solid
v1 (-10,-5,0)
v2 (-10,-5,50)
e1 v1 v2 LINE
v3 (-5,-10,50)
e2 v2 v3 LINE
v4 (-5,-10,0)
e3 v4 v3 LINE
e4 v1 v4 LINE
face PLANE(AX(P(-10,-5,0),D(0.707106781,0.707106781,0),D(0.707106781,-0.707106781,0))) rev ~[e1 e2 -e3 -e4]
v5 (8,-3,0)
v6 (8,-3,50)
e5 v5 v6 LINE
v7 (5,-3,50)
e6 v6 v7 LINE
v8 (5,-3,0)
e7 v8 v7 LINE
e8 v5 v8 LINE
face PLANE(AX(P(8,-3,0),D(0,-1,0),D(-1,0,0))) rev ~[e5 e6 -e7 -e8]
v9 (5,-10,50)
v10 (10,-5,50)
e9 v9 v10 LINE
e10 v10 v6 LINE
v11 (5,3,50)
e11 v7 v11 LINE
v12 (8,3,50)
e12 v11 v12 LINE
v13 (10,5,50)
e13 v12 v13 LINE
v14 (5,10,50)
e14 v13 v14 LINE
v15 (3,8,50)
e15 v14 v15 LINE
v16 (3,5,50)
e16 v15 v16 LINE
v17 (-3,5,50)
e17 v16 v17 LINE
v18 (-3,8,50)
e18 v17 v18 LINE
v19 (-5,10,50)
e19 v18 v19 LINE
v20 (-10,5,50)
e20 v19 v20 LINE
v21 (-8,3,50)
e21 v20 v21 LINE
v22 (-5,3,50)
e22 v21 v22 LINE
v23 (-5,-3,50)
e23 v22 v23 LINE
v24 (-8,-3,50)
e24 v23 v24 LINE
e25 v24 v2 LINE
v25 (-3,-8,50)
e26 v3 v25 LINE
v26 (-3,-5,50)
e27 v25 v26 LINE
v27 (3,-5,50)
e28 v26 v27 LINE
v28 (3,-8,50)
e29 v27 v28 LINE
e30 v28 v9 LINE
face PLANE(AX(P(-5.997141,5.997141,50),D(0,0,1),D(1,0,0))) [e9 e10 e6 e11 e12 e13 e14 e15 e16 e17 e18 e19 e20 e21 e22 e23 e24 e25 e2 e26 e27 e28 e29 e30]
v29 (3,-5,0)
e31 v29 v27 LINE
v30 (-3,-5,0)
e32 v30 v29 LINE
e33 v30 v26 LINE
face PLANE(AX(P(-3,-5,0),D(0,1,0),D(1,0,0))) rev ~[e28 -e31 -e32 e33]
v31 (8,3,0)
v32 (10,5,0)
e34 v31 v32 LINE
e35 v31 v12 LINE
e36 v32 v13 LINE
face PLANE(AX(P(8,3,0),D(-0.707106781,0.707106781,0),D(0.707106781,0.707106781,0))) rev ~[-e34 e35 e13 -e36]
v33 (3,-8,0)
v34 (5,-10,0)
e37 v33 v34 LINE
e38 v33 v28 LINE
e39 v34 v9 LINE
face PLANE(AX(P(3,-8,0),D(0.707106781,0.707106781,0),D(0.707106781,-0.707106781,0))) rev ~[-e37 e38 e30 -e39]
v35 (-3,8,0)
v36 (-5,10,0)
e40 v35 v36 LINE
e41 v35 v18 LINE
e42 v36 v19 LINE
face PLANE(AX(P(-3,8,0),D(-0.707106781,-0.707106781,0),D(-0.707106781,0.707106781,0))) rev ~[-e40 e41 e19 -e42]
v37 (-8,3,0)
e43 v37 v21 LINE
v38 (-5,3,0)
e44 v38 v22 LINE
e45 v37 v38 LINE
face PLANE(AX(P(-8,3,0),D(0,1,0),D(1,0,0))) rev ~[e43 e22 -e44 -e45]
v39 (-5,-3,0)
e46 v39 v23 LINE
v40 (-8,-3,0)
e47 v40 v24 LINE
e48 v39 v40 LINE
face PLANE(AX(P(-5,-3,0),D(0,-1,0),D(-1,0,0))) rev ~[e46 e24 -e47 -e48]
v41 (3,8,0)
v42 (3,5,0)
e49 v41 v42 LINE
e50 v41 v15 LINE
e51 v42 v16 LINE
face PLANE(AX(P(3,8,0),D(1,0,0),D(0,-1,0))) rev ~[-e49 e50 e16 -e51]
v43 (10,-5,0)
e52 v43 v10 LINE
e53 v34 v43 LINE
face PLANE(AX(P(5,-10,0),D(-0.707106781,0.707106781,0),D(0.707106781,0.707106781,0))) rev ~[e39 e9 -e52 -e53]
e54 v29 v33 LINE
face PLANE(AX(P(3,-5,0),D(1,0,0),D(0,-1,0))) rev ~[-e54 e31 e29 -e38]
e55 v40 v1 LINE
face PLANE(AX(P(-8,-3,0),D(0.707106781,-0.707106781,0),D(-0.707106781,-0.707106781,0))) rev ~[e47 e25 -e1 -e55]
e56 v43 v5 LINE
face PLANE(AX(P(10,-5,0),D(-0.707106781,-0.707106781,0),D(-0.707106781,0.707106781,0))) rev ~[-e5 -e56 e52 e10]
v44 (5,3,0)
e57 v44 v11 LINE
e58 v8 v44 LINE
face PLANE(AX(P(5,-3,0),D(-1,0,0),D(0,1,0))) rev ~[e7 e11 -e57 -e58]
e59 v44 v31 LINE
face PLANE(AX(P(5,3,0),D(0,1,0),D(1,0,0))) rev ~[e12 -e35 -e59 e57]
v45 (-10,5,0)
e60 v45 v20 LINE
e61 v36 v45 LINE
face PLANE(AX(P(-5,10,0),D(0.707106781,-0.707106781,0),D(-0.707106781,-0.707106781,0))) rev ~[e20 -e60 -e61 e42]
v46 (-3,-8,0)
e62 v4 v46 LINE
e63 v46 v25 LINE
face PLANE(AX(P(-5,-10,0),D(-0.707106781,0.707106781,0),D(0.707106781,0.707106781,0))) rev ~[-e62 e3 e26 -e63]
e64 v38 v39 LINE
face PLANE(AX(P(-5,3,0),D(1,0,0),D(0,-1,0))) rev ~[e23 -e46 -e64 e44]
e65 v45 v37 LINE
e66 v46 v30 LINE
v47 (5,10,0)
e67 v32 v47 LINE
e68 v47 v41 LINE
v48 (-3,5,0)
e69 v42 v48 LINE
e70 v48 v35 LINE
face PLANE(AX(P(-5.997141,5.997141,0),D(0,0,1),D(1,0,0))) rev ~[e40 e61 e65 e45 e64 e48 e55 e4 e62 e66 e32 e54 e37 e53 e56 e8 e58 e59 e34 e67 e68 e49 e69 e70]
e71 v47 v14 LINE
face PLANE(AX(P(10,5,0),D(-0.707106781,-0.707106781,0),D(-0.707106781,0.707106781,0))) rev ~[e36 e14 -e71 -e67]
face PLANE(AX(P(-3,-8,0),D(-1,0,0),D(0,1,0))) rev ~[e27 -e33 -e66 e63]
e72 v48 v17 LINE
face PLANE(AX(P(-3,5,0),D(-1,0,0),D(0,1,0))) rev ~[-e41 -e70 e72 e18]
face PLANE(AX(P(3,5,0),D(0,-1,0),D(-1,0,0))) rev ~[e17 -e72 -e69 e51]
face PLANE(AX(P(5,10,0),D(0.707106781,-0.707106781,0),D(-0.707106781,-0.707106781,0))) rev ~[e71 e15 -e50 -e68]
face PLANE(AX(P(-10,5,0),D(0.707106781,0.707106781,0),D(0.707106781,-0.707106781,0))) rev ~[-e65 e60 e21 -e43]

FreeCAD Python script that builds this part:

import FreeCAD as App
import Part
import Sketcher
from FreeCAD import Vector


def add_polygon(sketch, points):
    """Adds a closed chain of lines whose ends are joined by coincident constraints."""
    first, n = sketch.GeometryCount, len(points)
    for a, b in zip(points, points[1:] + points[:1]):
        sketch.addGeometry(Part.LineSegment(App.Vector(*a, 0), App.Vector(*b, 0)), False)
    for i in range(n):
        sketch.addConstraint(Sketcher.Constraint("Coincident", first + i, 2, first + (i + 1) % n, 1))

doc = App.newDocument("Part")
params = doc.addObject("Spreadsheet::Sheet", "Params")
for row, (alias, value) in enumerate([
    ("sketch1_width", "3 mm"),
    ("sketch1_width2", "6 mm"),
    ("pad1_length", "50 mm"),
], start=1):
    params.set(f"A{row}", alias)
    params.set(f"B{row}", "=" + value)
    params.setAlias(f"B{row}", alias)

body = doc.addObject("PartDesign::Body", "Body")

sketch1 = body.newObject("Sketcher::SketchObject", "Sketch")
sketch1.AttachmentSupport = (doc.getObject("XY_Plane"), [""])
sketch1.MapMode = "FlatFace"
add_polygon(sketch1, [(-3, 8), (-5, 10), (-10, 5), (-8, 3), (-5, 3), (-5, -3), (-8, -3), (-10, -5), (-5, -10), (-3, -8), (-3, -5), (3, -5), (3, -8), (5, -10), (10, -5), (8, -3), (5, -3), (5, 3), (8, 3), (10, 5), (5, 10), (3, 8), (3, 5), (-3, 5)])
sketch1.addConstraint(Sketcher.Constraint("Horizontal", 3))
sketch1.addConstraint(Sketcher.Constraint("Vertical", 4))
sketch1.addConstraint(Sketcher.Constraint("Horizontal", 5))
sketch1.addConstraint(Sketcher.Constraint("Vertical", 9))
sketch1.addConstraint(Sketcher.Constraint("Horizontal", 10))
sketch1.addConstraint(Sketcher.Constraint("Vertical", 11))
sketch1.addConstraint(Sketcher.Constraint("Horizontal", 15))
sketch1.addConstraint(Sketcher.Constraint("Vertical", 16))
sketch1.addConstraint(Sketcher.Constraint("Horizontal", 17))
sketch1.addConstraint(Sketcher.Constraint("Vertical", 21))
sketch1.addConstraint(Sketcher.Constraint("Horizontal", 22))
sketch1.addConstraint(Sketcher.Constraint("Vertical", 23))
sketch1.addConstraint(Sketcher.Constraint("Symmetric", 0, 2, 12, 2, -1, 1))
sketch1.addConstraint(Sketcher.Constraint("Symmetric", 1, 2, 13, 2, -1, 1))
sketch1.addConstraint(Sketcher.Constraint("Symmetric", 2, 2, 14, 2, -1, 1))
sketch1.addConstraint(Sketcher.Constraint("Symmetric", 4, 2, 16, 2, -1, 1))
sketch1.addConstraint(Sketcher.Constraint("Symmetric", 6, 2, 18, 2, -1, 1))
sketch1.addConstraint(Sketcher.Constraint("Symmetric", 7, 2, 19, 2, -1, 1))
sketch1.addConstraint(Sketcher.Constraint("Symmetric", 8, 2, 20, 2, -1, 1))
sketch1.addConstraint(Sketcher.Constraint("Symmetric", 10, 2, 22, 2, -1, 1))
sketch1.addConstraint(Sketcher.Constraint("Symmetric", 8, 2, 11, 2, -2))
sketch1.addConstraint(Sketcher.Constraint("Symmetric", 7, 2, 12, 2, -2))
sketch1.addConstraint(Sketcher.Constraint("Symmetric", 6, 2, 13, 2, -2))
sketch1.addConstraint(Sketcher.Constraint("Symmetric", 5, 2, 14, 2, -2))
sketch1.addConstraint(Sketcher.Constraint("Perpendicular", 0, 1))
sketch1.addConstraint(Sketcher.Constraint("Perpendicular", 1, 2))
sketch1.addConstraint(Sketcher.Constraint("Perpendicular", 2, 6))
sketch1.addConstraint(Sketcher.Constraint("Perpendicular", 7, 8))
sketch1.addConstraint(Sketcher.Constraint("Perpendicular", 14, 18))
sketch1.addConstraint(Sketcher.Constraint("Horizontal", 6, 2, 9, 2))
sketch1.addConstraint(Sketcher.Constraint("Vertical", 0, 2, 3, 2))
sketch1.addConstraint(Sketcher.Constraint("Equal", 22, 4))
sketch1.addConstraint(Sketcher.Constraint("Equal", 17, 9))
sketch1.addConstraint(Sketcher.Constraint("DistanceX", 3, 1, 3, 2, 3.0))
sketch1.addConstraint(Sketcher.Constraint("DistanceX", 10, 1, 10, 2, 6.0))
sketch1.addConstraint(Sketcher.Constraint("DistanceX", 0, 2, -1, 1, 5.0))
sketch1.setExpression("Constraints[57]", "Params.sketch1_width")
sketch1.setExpression("Constraints[58]", "Params.sketch1_width2")
pad1 = body.newObject("PartDesign::Pad", "Pad")
pad1.Profile = sketch1
pad1.setExpression("Length", "Params.pad1_length")

doc.recompute()
